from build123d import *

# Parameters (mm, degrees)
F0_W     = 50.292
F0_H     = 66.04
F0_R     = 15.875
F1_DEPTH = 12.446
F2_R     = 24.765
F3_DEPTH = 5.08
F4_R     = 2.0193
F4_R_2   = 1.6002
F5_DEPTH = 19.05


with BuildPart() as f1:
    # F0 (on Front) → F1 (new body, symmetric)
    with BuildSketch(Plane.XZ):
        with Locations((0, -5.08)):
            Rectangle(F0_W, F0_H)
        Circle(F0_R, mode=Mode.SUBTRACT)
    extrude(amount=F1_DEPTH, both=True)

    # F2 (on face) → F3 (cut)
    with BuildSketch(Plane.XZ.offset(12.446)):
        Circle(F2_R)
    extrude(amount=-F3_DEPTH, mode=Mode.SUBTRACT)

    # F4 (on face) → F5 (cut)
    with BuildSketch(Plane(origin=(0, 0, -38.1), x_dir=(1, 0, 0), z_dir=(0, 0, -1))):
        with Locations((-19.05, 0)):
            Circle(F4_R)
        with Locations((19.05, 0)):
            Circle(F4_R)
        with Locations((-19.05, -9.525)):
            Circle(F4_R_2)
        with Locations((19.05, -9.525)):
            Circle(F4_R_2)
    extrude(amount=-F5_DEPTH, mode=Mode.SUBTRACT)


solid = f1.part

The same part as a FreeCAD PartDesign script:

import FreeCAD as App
import Part
import Sketcher

V = App.Vector
Q = App.Units.Quantity

doc = App.newDocument("Part")
body = doc.addObject("PartDesign::Body", "Body")

# Sketch on XZ plane
sketch1 = body.newObject("Sketcher::SketchObject", "Sketch")
sketch1.AttachmentSupport = (doc.getObject("XZ_Plane"), [""])
sketch1.MapMode = "FlatFace"
sketch1.addGeometry([
    Part.LineSegment(V(-25.146, 27.94, 0), V(-25.146, -38.1, 0)),  # 0
    Part.LineSegment(V(-25.146, -38.1, 0), V(25.146, -38.1, 0)),  # 1
    Part.LineSegment(V(25.146, -38.1, 0), V(25.146, 27.94, 0)),  # 2
    Part.LineSegment(V(25.146, 27.94, 0), V(-25.146, 27.94, 0)),  # 3
    Part.Circle(V(0, 0, 0), V(0, 0, 1), 15.875),  # 4
], False)
sketch1.addConstraint([
    Sketcher.Constraint("Coincident", 0, 2, 1, 1),
    Sketcher.Constraint("Coincident", 1, 2, 2, 1),
    Sketcher.Constraint("Coincident", 2, 2, 3, 1),
    Sketcher.Constraint("Coincident", 3, 2, 0, 1),
    Sketcher.Constraint("Vertical", 0),
    Sketcher.Constraint("Horizontal", 1),
    Sketcher.Constraint("Vertical", 2),
    Sketcher.Constraint("Horizontal", 3),
    Sketcher.Constraint("Coincident", 4, 3, -1, 1),
    Sketcher.Constraint("Diameter", 4, Q("1.25 in")),
    Sketcher.Constraint("DistanceY", 0, 2, 0, 1, Q("2.6 in")),
    Sketcher.Constraint("DistanceX", 1, 1, 1, 2, Q("1.98 in")),
    Sketcher.Constraint("DistanceY", 0, 2, -1, 1, Q("1.5 in")),
    Sketcher.Constraint("DistanceX", 0, 2, -1, 1, Q("0.99 in")),
])
pad1 = body.newObject("PartDesign::Pad", "Pad")
pad1.Profile = sketch1
pad1.Length = Q("0.98 in")
pad1.Midplane = True

# Sketch on XZ plane
sketch2 = body.newObject("Sketcher::SketchObject", "Sketch001")
sketch2.AttachmentSupport = (doc.getObject("XZ_Plane"), [""])
sketch2.MapMode = "FlatFace"
sketch2.AttachmentOffset = App.Placement(V(0, 0, 0.49 * 25.4), App.Rotation())
sketch2.addGeometry(Part.Circle(V(0, 0, 0), V(0, 0, 1), 24.765), False)
sketch2.addConstraint([
    Sketcher.Constraint("Coincident", 0, 3, -1, 1),
    Sketcher.Constraint("Diameter", 0, Q("1.95 in")),
])
pocket1 = body.newObject("PartDesign::Pocket", "Pocket")
pocket1.Profile = sketch2
pocket1.Length = Q("0.2 in")

# Sketch on XY plane
sketch3 = body.newObject("Sketcher::SketchObject", "Sketch002")
sketch3.AttachmentSupport = (doc.getObject("XY_Plane"), [""])
sketch3.MapMode = "FlatFace"
sketch3.AttachmentOffset = App.Placement(V(0, 0, -1.5 * 25.4), App.Rotation())
sketch3.addGeometry([
    Part.Circle(V(-19.05, 0, 0), V(0, 0, 1), 2.0193),
    Part.Circle(V(19.05, 0, 0), V(0, 0, 1), 2.0193),
    Part.Circle(V(-19.05, 9.525, 0), V(0, 0, 1), 1.6002),
    Part.Circle(V(19.05, 9.525, 0), V(0, 0, 1), 1.6002),
], False)
sketch3.addConstraint([
    Sketcher.Constraint("Equal", 0, 1),
    Sketcher.Constraint("Equal", 2, 3),
    Sketcher.Constraint("Symmetric", 0, 3, 1, 3, -1, 1),
    Sketcher.Constraint("Symmetric", 2, 3, 3, 3, -2),
    Sketcher.Constraint("PointOnObject", 0, 3, -1),
    Sketcher.Constraint("Vertical", 0, 3, 2, 3),
    Sketcher.Constraint("Diameter", 0, Q("0.159 in")),
    Sketcher.Constraint("Diameter", 2, Q("0.126 in")),
    Sketcher.Constraint("DistanceX", 0, 3, 1, 3, Q("1.5 in")),
    Sketcher.Constraint("DistanceY", -1, 1, 2, 3, Q("0.375 in")),
])
pocket2 = body.newObject("PartDesign::Pocket", "Pocket001")
pocket2.Profile = sketch3
pocket2.Length = Q("0.75 in")
pocket2.Reversed = True

doc.recompute()
